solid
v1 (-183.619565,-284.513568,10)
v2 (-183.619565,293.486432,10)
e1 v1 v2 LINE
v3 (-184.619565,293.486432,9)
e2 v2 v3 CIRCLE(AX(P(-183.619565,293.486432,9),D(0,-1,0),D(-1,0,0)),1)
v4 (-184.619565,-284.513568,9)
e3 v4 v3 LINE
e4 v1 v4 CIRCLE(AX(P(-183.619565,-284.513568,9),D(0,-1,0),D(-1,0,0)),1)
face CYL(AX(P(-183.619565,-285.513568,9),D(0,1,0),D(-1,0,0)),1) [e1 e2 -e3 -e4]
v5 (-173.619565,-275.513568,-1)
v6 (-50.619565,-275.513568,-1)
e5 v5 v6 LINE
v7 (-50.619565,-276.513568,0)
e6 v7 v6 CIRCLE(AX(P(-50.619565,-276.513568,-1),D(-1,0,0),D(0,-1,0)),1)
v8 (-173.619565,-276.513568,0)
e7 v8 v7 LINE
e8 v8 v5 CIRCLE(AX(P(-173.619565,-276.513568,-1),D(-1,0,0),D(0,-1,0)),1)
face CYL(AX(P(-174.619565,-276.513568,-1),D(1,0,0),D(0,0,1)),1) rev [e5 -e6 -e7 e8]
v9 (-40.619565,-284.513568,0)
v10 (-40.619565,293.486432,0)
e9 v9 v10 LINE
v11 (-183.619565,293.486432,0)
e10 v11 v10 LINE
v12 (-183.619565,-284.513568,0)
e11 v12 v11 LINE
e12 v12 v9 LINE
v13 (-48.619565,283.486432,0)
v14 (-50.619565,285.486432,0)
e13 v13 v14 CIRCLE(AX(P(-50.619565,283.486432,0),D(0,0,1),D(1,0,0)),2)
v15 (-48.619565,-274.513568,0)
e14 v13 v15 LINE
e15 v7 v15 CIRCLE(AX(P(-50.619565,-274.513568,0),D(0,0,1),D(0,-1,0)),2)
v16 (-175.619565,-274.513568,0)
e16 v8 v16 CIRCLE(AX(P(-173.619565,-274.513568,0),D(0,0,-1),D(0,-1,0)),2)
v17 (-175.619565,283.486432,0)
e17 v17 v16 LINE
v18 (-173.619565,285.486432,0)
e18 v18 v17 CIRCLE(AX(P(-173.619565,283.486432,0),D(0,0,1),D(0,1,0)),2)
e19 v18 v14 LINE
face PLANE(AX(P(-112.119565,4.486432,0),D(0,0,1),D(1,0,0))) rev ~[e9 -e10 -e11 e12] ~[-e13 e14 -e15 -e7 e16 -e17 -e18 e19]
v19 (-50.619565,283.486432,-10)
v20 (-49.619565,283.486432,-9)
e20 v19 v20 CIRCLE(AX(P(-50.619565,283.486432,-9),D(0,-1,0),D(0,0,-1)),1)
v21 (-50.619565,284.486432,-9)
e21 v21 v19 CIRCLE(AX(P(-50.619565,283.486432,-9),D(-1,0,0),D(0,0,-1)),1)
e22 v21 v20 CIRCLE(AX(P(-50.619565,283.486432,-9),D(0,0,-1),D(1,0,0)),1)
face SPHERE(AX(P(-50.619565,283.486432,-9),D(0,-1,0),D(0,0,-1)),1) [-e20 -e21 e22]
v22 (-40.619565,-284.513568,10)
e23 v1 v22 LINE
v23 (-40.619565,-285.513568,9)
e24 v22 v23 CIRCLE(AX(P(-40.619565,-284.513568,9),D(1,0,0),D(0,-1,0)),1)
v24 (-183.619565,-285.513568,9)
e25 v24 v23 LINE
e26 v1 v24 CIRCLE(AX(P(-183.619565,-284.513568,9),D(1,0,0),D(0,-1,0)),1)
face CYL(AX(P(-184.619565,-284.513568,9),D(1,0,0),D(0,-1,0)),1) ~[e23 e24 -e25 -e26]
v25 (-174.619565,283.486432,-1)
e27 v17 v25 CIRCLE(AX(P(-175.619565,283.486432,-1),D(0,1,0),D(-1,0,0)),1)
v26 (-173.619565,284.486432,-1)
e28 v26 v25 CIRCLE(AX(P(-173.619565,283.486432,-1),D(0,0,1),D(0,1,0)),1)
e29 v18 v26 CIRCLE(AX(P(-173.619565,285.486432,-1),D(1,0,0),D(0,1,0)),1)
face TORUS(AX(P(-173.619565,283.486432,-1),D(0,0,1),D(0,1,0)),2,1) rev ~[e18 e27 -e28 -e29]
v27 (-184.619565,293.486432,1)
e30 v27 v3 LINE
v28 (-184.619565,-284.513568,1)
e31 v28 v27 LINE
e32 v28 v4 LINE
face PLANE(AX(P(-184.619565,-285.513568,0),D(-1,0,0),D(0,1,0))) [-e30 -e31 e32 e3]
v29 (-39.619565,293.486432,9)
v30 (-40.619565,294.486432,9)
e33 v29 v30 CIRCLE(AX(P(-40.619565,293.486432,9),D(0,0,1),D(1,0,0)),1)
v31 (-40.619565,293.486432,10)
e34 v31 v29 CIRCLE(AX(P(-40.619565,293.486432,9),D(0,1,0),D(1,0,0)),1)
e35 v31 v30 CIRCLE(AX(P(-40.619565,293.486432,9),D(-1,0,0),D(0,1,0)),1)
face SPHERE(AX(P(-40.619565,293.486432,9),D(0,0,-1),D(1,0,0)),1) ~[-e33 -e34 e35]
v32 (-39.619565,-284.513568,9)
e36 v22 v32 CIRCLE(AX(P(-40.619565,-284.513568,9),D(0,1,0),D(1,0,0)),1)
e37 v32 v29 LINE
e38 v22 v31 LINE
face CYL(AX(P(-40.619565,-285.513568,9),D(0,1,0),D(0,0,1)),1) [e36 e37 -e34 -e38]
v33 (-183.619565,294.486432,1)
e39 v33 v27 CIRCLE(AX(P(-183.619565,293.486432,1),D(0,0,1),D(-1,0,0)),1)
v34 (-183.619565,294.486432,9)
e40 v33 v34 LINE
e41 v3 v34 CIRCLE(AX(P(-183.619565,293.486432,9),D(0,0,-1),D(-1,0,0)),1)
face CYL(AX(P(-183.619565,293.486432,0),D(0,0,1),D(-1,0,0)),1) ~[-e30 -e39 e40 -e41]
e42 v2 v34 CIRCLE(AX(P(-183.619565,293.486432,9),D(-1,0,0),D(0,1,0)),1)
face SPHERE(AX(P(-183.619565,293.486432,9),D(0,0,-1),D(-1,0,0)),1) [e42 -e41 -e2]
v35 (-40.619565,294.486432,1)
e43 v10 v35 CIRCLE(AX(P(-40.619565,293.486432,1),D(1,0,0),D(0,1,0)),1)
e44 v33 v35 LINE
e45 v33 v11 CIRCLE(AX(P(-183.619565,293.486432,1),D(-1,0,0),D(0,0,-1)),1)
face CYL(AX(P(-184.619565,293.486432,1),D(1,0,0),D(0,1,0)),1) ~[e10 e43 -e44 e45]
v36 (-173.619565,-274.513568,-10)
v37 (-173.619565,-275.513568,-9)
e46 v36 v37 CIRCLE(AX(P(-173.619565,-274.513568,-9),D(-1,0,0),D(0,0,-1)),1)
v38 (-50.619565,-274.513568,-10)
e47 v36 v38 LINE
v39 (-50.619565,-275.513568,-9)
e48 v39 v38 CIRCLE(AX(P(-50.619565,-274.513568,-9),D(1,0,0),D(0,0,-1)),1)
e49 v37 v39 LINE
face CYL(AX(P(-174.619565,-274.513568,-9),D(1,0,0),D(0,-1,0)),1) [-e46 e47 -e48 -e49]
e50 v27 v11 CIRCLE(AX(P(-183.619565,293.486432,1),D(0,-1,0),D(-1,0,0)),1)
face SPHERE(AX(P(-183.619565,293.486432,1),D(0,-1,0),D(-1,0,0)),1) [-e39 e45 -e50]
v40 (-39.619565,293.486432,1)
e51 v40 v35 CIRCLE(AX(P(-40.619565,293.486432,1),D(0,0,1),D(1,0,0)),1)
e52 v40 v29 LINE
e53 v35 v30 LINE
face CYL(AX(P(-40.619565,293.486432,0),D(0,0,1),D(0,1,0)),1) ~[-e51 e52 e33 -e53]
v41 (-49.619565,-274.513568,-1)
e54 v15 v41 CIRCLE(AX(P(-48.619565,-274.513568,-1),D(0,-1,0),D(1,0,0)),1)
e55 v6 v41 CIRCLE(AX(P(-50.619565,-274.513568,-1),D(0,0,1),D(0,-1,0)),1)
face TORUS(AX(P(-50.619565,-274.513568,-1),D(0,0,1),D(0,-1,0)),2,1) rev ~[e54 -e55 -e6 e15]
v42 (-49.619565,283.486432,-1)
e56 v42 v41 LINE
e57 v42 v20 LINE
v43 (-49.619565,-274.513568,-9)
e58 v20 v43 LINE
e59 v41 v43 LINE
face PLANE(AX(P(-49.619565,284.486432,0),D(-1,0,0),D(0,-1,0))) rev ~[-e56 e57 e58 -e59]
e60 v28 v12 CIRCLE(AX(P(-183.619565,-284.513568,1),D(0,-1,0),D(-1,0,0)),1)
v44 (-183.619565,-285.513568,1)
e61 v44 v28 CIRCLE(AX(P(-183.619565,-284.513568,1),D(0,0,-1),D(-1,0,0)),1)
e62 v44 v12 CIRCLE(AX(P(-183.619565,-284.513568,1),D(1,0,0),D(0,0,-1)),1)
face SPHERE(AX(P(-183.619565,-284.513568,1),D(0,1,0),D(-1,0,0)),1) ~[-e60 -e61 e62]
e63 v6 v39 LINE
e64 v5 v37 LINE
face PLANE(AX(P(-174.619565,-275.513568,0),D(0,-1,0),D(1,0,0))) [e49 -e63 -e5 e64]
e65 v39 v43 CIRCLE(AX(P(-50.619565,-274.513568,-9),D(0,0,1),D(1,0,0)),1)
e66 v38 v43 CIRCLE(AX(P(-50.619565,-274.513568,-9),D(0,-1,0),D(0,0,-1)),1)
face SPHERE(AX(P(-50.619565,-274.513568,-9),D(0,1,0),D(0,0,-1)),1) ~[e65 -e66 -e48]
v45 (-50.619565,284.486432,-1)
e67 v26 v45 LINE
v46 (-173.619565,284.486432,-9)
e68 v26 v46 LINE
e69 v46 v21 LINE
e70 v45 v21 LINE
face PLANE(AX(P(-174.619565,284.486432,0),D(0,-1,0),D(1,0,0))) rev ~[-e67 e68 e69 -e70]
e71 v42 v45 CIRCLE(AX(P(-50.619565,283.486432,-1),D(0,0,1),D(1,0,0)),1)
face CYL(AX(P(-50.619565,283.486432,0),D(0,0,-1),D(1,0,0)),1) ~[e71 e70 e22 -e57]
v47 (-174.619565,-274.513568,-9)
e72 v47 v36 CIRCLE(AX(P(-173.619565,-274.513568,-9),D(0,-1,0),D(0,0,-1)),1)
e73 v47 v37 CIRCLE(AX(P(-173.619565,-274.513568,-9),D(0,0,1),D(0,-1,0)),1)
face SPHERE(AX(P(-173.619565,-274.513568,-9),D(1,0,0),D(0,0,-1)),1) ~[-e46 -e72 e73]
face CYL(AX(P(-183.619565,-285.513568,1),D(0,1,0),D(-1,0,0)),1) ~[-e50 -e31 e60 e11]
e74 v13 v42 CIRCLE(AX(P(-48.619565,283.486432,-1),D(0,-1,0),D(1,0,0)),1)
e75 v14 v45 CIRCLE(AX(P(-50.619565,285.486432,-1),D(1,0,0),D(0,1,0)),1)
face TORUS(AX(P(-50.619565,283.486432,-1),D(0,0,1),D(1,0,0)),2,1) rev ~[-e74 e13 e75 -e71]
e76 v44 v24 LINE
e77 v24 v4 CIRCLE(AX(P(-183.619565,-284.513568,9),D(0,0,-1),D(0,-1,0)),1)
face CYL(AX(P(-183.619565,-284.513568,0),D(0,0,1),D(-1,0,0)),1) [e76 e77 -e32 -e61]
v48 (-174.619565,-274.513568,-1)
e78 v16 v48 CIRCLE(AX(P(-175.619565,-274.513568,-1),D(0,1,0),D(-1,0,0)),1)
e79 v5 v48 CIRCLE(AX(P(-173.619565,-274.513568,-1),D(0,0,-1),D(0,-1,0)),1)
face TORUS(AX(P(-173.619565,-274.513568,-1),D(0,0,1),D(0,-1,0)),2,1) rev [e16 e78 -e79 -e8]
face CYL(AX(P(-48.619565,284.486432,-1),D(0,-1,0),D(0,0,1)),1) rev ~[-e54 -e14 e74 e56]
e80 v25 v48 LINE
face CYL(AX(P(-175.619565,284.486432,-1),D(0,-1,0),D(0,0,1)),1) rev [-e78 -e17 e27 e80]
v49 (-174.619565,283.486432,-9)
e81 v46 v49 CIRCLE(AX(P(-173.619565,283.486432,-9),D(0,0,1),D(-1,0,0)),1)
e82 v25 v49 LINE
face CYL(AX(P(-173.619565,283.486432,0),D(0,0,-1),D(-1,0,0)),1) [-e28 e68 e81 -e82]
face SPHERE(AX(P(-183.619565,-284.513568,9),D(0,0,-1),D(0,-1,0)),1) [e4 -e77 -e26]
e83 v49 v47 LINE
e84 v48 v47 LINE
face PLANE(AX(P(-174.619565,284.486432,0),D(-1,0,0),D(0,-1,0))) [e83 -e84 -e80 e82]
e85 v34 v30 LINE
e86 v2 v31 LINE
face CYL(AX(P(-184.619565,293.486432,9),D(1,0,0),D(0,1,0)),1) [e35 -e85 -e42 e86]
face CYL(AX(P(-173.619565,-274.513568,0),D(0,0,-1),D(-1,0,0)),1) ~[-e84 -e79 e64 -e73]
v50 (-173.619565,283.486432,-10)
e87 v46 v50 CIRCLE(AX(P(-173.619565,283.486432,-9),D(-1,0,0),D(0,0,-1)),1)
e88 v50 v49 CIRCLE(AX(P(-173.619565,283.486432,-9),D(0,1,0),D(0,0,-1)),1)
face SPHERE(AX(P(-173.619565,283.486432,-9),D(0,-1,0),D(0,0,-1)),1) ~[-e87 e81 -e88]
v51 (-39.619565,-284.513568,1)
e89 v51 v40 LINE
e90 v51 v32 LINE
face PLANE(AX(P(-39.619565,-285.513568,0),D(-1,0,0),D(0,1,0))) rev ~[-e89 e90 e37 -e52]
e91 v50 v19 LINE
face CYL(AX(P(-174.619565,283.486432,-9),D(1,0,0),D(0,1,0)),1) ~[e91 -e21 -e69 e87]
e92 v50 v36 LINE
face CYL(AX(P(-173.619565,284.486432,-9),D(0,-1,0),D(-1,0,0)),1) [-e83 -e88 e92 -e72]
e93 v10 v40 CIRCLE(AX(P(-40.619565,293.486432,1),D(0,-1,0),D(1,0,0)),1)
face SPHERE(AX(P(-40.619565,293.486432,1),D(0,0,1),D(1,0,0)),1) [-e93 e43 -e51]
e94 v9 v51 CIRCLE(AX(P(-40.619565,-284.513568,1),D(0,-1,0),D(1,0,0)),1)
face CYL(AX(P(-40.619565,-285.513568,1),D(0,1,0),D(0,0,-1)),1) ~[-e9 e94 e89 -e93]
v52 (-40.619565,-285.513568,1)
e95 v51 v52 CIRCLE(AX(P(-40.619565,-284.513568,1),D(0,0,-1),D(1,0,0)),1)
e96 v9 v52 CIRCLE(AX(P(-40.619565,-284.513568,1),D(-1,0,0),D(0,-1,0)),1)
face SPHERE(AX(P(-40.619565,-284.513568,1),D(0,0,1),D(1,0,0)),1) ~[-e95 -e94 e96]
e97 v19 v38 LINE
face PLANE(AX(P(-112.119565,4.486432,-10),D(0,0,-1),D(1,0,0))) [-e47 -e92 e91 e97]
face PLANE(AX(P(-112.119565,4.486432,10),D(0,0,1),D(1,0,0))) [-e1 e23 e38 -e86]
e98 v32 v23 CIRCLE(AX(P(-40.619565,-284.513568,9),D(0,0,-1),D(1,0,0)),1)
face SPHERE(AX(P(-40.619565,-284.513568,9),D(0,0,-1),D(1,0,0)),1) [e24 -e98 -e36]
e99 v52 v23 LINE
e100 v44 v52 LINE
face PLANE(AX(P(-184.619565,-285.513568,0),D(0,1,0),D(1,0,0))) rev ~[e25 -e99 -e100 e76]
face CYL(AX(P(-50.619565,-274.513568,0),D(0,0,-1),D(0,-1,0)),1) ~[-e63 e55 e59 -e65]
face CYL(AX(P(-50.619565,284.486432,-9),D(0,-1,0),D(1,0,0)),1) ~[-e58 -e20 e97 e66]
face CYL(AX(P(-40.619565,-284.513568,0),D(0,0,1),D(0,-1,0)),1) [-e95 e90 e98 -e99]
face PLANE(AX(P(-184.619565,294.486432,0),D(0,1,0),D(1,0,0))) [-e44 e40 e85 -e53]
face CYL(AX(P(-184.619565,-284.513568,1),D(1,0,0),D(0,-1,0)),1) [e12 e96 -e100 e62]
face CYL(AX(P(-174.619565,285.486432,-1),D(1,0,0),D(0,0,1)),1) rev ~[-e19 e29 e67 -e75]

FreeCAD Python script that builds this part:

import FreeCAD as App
import Part
import Sketcher
from FreeCAD import Vector

doc = App.newDocument("Part")
body = doc.addObject("PartDesign::Body", "Body")

# Sketch on XY plane
sketch1 = doc.addObject("Sketcher::SketchObject", "Sketch")
body.addObject(sketch1)
sketch1.AttachmentSupport = (doc.XY_Plane, [""])
sketch1.MapMode = "FlatFace"
sketch1.addGeometry([
    Part.LineSegment(Vector(-185, 294, 0), Vector(-185, -286, 0)),
    Part.LineSegment(Vector(-185, -286, 0), Vector(-40, -286, 0)),
    Part.LineSegment(Vector(-40, -286, 0), Vector(-40, 294, 0)),
    Part.LineSegment(Vector(-40, 294, 0), Vector(-185, 294, 0)),
], False)
sketch1.addConstraint([
    Sketcher.Constraint("Coincident", 0, 2, 1, 1),
    Sketcher.Constraint("Coincident", 1, 2, 2, 1),
    Sketcher.Constraint("Coincident", 2, 2, 3, 1),
    Sketcher.Constraint("Coincident", 3, 2, 0, 1),
    Sketcher.Constraint("Vertical", 0),
    Sketcher.Constraint("Horizontal", 1),
    Sketcher.Constraint("Vertical", 2),
    Sketcher.Constraint("Horizontal", 3),
    Sketcher.Constraint("DistanceX", 1, 1, 1, 2, 145.0),
    Sketcher.Constraint("DistanceY", 0, 2, 0, 1, 580.0),
    Sketcher.Constraint("DistanceY", 0, 2, -1, 1, 285.513568),
    Sketcher.Constraint("DistanceX", 0, 2, -1, 1, 184.619565),
])
pad1 = doc.addObject("PartDesign::Pad", "Pad")
body.addObject(pad1)
pad1.Profile = sketch1
pad1.Length = 10

# Sketch on XY plane
sketch2 = doc.addObject("Sketcher::SketchObject", "Sketch001")
body.addObject(sketch2)
sketch2.AttachmentSupport = (doc.XY_Plane, [""])
sketch2.MapMode = "FlatFace"
sketch2.addGeometry([
    Part.LineSegment(Vector(-175, -276, 0), Vector(-175, 284, 0)),
    Part.LineSegment(Vector(-175, 284, 0), Vector(-50, 284, 0)),
    Part.LineSegment(Vector(-50, 284, 0), Vector(-50, -276, 0)),
    Part.LineSegment(Vector(-50, -276, 0), Vector(-175, -276, 0)),
], False)
sketch2.addConstraint([
    Sketcher.Constraint("Coincident", 0, 2, 1, 1),
    Sketcher.Constraint("Coincident", 1, 2, 2, 1),
    Sketcher.Constraint("Coincident", 2, 2, 3, 1),
    Sketcher.Constraint("Coincident", 3, 2, 0, 1),
    Sketcher.Constraint("Vertical", 0),
    Sketcher.Constraint("Horizontal", 1),
    Sketcher.Constraint("Vertical", 2),
    Sketcher.Constraint("Horizontal", 3),
    Sketcher.Constraint("DistanceX", 1, 1, 1, 2, 125.0),
    Sketcher.Constraint("DistanceY", 0, 1, 0, 2, 560.0),
    Sketcher.Constraint("DistanceY", -1, 1, 0, 2, 284.486432),
    Sketcher.Constraint("DistanceX", 0, 2, -1, 1, 174.619565),
])
pad2 = doc.addObject("PartDesign::Pad", "Pad001")
body.addObject(pad2)
pad2.Profile = sketch2
pad2.Length = 10
pad2.Reversed = True
doc.recompute()

fillet = doc.addObject("PartDesign::Fillet", "Fillet")
body.addObject(fillet)
fillet.Base = (pad2, ["Edge1"])
fillet.UseAllEdges = True
fillet.Radius = 1

doc.recompute()
